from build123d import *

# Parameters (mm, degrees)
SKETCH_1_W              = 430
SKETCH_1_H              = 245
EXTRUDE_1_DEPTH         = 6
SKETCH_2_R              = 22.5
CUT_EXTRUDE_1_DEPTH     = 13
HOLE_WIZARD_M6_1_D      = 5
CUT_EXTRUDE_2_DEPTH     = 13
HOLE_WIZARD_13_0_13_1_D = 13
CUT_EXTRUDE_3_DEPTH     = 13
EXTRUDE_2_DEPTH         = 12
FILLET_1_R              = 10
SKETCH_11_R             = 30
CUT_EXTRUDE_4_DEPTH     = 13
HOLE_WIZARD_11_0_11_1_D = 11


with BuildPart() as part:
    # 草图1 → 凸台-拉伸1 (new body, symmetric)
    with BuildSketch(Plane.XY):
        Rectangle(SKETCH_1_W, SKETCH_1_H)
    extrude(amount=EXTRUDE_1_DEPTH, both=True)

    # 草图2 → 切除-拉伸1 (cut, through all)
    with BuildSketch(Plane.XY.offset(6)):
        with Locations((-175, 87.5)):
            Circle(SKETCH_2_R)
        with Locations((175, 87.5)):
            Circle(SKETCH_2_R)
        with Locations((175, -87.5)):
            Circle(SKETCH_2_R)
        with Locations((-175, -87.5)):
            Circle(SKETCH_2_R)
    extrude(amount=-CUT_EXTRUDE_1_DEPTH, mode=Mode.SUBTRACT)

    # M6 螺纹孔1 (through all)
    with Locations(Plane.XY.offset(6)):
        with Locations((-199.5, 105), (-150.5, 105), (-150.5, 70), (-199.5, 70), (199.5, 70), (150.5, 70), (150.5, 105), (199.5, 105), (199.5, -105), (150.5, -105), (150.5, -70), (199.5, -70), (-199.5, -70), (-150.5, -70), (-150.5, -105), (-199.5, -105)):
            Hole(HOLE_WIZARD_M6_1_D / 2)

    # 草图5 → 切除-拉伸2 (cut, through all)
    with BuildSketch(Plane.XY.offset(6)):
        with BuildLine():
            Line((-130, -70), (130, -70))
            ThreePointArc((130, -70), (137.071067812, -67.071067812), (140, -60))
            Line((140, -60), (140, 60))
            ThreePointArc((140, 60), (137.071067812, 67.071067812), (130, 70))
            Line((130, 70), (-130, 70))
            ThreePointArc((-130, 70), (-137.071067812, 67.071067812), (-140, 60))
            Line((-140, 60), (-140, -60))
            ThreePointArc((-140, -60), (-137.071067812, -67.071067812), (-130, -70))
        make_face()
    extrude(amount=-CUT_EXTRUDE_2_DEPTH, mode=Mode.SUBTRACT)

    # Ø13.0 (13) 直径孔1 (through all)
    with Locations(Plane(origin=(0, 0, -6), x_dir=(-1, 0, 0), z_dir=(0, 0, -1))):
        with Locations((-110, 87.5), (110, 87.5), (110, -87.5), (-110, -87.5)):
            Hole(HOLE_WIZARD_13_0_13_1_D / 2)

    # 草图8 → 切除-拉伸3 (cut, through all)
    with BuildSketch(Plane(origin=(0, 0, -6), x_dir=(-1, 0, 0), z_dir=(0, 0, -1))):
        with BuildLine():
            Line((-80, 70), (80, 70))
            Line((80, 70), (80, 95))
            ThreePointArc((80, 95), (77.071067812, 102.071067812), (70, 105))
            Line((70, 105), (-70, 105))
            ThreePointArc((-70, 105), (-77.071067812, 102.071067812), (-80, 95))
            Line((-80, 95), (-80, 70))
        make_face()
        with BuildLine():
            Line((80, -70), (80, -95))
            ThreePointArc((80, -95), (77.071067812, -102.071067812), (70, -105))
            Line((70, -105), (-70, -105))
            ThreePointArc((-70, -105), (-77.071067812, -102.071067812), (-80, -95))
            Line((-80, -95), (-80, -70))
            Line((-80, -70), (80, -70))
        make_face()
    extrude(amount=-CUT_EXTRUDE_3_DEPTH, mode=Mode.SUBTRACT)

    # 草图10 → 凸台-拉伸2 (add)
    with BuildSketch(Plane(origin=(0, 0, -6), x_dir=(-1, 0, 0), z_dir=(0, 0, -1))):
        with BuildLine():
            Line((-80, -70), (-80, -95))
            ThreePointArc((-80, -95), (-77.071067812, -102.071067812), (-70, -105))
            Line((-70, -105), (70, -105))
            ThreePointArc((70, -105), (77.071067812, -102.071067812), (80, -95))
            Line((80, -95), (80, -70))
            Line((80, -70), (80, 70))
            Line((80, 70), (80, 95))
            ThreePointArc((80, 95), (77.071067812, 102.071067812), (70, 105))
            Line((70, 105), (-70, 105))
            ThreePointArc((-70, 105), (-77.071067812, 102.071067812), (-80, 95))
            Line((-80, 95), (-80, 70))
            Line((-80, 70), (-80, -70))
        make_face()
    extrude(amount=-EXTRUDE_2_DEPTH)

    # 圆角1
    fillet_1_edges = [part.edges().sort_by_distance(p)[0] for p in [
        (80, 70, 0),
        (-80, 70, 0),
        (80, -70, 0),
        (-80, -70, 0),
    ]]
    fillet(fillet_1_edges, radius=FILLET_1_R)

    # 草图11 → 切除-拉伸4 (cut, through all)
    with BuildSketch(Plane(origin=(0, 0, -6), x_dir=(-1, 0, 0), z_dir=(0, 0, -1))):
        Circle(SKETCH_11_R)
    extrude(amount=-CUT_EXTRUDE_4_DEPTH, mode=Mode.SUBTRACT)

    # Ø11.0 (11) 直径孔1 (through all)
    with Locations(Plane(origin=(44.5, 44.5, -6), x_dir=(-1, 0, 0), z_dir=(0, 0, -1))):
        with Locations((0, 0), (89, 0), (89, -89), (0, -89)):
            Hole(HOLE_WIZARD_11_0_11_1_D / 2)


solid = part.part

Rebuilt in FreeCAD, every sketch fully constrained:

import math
import FreeCAD as App
import Part
import Sketcher
from FreeCAD import Vector


def edges_at(feature, points):
    """Names of the edges that pass closest to the given points."""
    edges = feature.Shape.Edges
    near = lambda p: min(range(len(edges)), key=lambda i: edges[i].distToShape(Part.Vertex(*p))[0])
    return sorted({f"Edge{near(p) + 1}" for p in points})


def add_polygon(sketch, points):
    """Adds a closed chain of lines whose ends are joined by coincident constraints."""
    first, n = sketch.GeometryCount, len(points)
    for a, b in zip(points, points[1:] + points[:1]):
        sketch.addGeometry(Part.LineSegment(App.Vector(*a, 0), App.Vector(*b, 0)), False)
    for i in range(n):
        sketch.addConstraint(Sketcher.Constraint("Coincident", first + i, 2, first + (i + 1) % n, 1))

doc = App.newDocument("Part")
body = doc.addObject("PartDesign::Body", "Body")

# Sketch on XY plane
sketch1 = body.newObject("Sketcher::SketchObject", "Sketch")
sketch1.AttachmentSupport = (doc.getObject("XY_Plane"), [""])
sketch1.MapMode = "FlatFace"
add_polygon(sketch1, [(-215, 122), (-215, -122), (215, -122), (215, 122)])  # lines 0-3
sketch1.addConstraint(Sketcher.Constraint("Vertical", 0))
sketch1.addConstraint(Sketcher.Constraint("Horizontal", 1))
sketch1.addConstraint(Sketcher.Constraint("Vertical", 2))
sketch1.addConstraint(Sketcher.Constraint("Horizontal", 3))
sketch1.addConstraint(Sketcher.Constraint("Symmetric", 0, 2, 2, 2, -1, 1))
sketch1.addConstraint(Sketcher.Constraint("DistanceX", 1, 1, 1, 2, 430.0))
sketch1.addConstraint(Sketcher.Constraint("DistanceY", 0, 2, 0, 1, 245.0))
pad1 = body.newObject("PartDesign::Pad", "Pad")
pad1.Profile = sketch1
pad1.Length = 12
pad1.Midplane = True

# Sketch on XY plane
sketch2 = body.newObject("Sketcher::SketchObject", "Sketch001")
sketch2.AttachmentSupport = (doc.getObject("XY_Plane"), [""])
sketch2.MapMode = "FlatFace"
sketch2.AttachmentOffset = App.Placement(Vector(0, 0, 6), App.Rotation())
sketch2.addGeometry(Part.Circle(Vector(-175, 88, 0), Vector(0, 0, 1), 22), False)
sketch2.addGeometry(Part.Circle(Vector(175, 88, 0), Vector(0, 0, 1), 22), False)
sketch2.addGeometry(Part.Circle(Vector(175, -88, 0), Vector(0, 0, 1), 22), False)
sketch2.addGeometry(Part.Circle(Vector(-175, -88, 0), Vector(0, 0, 1), 22), False)
sketch2.addConstraint(Sketcher.Constraint("Equal", 0, 1))
sketch2.addConstraint(Sketcher.Constraint("Equal", 1, 2))
sketch2.addConstraint(Sketcher.Constraint("Equal", 2, 3))
sketch2.addConstraint(Sketcher.Constraint("Symmetric", 0, 3, 2, 3, -1, 1))
sketch2.addConstraint(Sketcher.Constraint("Symmetric", 1, 3, 3, 3, -1, 1))
sketch2.addConstraint(Sketcher.Constraint("Symmetric", 0, 3, 1, 3, -2))
sketch2.addConstraint(Sketcher.Constraint("Diameter", 0, 45.0))
sketch2.addConstraint(Sketcher.Constraint("DistanceX", 0, 3, -1, 1, 175.0))
sketch2.addConstraint(Sketcher.Constraint("DistanceY", 2, 3, 1, 3, 175.0))
pocket1 = body.newObject("PartDesign::Pocket", "Pocket")
pocket1.Profile = sketch2
pocket1.Type = "ThroughAll"

# Sketch on XY plane
sketch3 = body.newObject("Sketcher::SketchObject", "Sketch002")
sketch3.AttachmentSupport = (doc.getObject("XY_Plane"), [""])
sketch3.MapMode = "FlatFace"
sketch3.AttachmentOffset = App.Placement(Vector(0, 0, 6), App.Rotation())
sketch3.addGeometry(Part.Circle(Vector(-199.5, 105, 0), Vector(0, 0, 1), 2.5), False)
sketch3.addGeometry(Part.Circle(Vector(-150.5, 105, 0), Vector(0, 0, 1), 2.5), False)
sketch3.addGeometry(Part.Circle(Vector(-150.5, 70, 0), Vector(0, 0, 1), 2.5), False)
sketch3.addGeometry(Part.Circle(Vector(-199.5, 70, 0), Vector(0, 0, 1), 2.5), False)
sketch3.addGeometry(Part.Circle(Vector(199.5, 70, 0), Vector(0, 0, 1), 2.5), False)
sketch3.addGeometry(Part.Circle(Vector(150.5, 70, 0), Vector(0, 0, 1), 2.5), False)
sketch3.addGeometry(Part.Circle(Vector(150.5, 105, 0), Vector(0, 0, 1), 2.5), False)
sketch3.addGeometry(Part.Circle(Vector(199.5, 105, 0), Vector(0, 0, 1), 2.5), False)
sketch3.addGeometry(Part.Circle(Vector(199.5, -105, 0), Vector(0, 0, 1), 2.5), False)
sketch3.addGeometry(Part.Circle(Vector(150.5, -105, 0), Vector(0, 0, 1), 2.5), False)
sketch3.addGeometry(Part.Circle(Vector(150.5, -70, 0), Vector(0, 0, 1), 2.5), False)
sketch3.addGeometry(Part.Circle(Vector(199.5, -70, 0), Vector(0, 0, 1), 2.5), False)
sketch3.addGeometry(Part.Circle(Vector(-199.5, -70, 0), Vector(0, 0, 1), 2.5), False)
sketch3.addGeometry(Part.Circle(Vector(-150.5, -70, 0), Vector(0, 0, 1), 2.5), False)
sketch3.addGeometry(Part.Circle(Vector(-150.5, -105, 0), Vector(0, 0, 1), 2.5), False)
sketch3.addGeometry(Part.Circle(Vector(-199.5, -105, 0), Vector(0, 0, 1), 2.5), False)
sketch3.addConstraint(Sketcher.Constraint("Equal", 0, 1))
sketch3.addConstraint(Sketcher.Constraint("Equal", 1, 2))
sketch3.addConstraint(Sketcher.Constraint("Equal", 2, 3))
sketch3.addConstraint(Sketcher.Constraint("Equal", 3, 4))
sketch3.addConstraint(Sketcher.Constraint("Equal", 4, 5))
sketch3.addConstraint(Sketcher.Constraint("Equal", 5, 6))
sketch3.addConstraint(Sketcher.Constraint("Equal", 6, 7))
sketch3.addConstraint(Sketcher.Constraint("Equal", 7, 8))
sketch3.addConstraint(Sketcher.Constraint("Equal", 8, 9))
sketch3.addConstraint(Sketcher.Constraint("Equal", 9, 10))
sketch3.addConstraint(Sketcher.Constraint("Equal", 10, 11))
sketch3.addConstraint(Sketcher.Constraint("Equal", 11, 12))
sketch3.addConstraint(Sketcher.Constraint("Equal", 12, 13))
sketch3.addConstraint(Sketcher.Constraint("Equal", 13, 14))
sketch3.addConstraint(Sketcher.Constraint("Equal", 14, 15))
sketch3.addConstraint(Sketcher.Constraint("Symmetric", 0, 3, 8, 3, -1, 1))
sketch3.addConstraint(Sketcher.Constraint("Symmetric", 1, 3, 9, 3, -1, 1))
sketch3.addConstraint(Sketcher.Constraint("Symmetric", 2, 3, 10, 3, -1, 1))
sketch3.addConstraint(Sketcher.Constraint("Symmetric", 3, 3, 11, 3, -1, 1))
sketch3.addConstraint(Sketcher.Constraint("Symmetric", 4, 3, 12, 3, -1, 1))
sketch3.addConstraint(Sketcher.Constraint("Symmetric", 5, 3, 13, 3, -1, 1))
sketch3.addConstraint(Sketcher.Constraint("Symmetric", 6, 3, 14, 3, -1, 1))
sketch3.addConstraint(Sketcher.Constraint("Symmetric", 7, 3, 15, 3, -1, 1))
sketch3.addConstraint(Sketcher.Constraint("Symmetric", 3, 3, 4, 3, -2))
sketch3.addConstraint(Sketcher.Constraint("Symmetric", 2, 3, 5, 3, -2))
sketch3.addConstraint(Sketcher.Constraint("Symmetric", 1, 3, 6, 3, -2))
sketch3.addConstraint(Sketcher.Constraint("Symmetric", 0, 3, 7, 3, -2))
sketch3.addConstraint(Sketcher.Constraint("Horizontal", 0, 3, 1, 3))
sketch3.addConstraint(Sketcher.Constraint("Horizontal", 2, 3, 3, 3))
sketch3.addConstraint(Sketcher.Constraint("Vertical", 1, 3, 2, 3))
sketch3.addConstraint(Sketcher.Constraint("Vertical", 0, 3, 3, 3))
sketch3.addConstraint(Sketcher.Constraint("Diameter", 0, 5.0))
sketch3.addConstraint(Sketcher.Constraint("DistanceY", -1, 1, 0, 3, 105.0))
sketch3.addConstraint(Sketcher.Constraint("DistanceY", -1, 1, 2, 3, 70.0))
sketch3.addConstraint(Sketcher.Constraint("DistanceX", 0, 3, 1, 3, 49.0))
sketch3.addConstraint(Sketcher.Constraint("DistanceX", 2, 3, 4, 3, 350.0))
doc.recompute()
hole = body.newObject("PartDesign::Hole", "Hole")
hole.Profile = sketch3
hole.ThreadType = "None"
hole.Diameter = 5
hole.DepthType = "ThroughAll"

# Sketch on XY plane
sketch4 = body.newObject("Sketcher::SketchObject", "Sketch003")
sketch4.AttachmentSupport = (doc.getObject("XY_Plane"), [""])
sketch4.MapMode = "FlatFace"
sketch4.AttachmentOffset = App.Placement(Vector(0, 0, 6), App.Rotation())
sketch4.addGeometry(Part.LineSegment(Vector(-130, -70, 0), Vector(130, -70, 0)), False)
sketch4.addGeometry(Part.ArcOfCircle(Part.Circle(Vector(130, -60, 0), Vector(0, 0, 1), 10), math.radians(-90), math.radians(0)), False)
sketch4.addGeometry(Part.LineSegment(Vector(140, -60, 0), Vector(140, 60, 0)), False)
sketch4.addGeometry(Part.ArcOfCircle(Part.Circle(Vector(130, 60, 0), Vector(0, 0, 1), 10), math.radians(0), math.radians(90)), False)
sketch4.addGeometry(Part.LineSegment(Vector(130, 70, 0), Vector(-130, 70, 0)), False)
sketch4.addGeometry(Part.ArcOfCircle(Part.Circle(Vector(-130, 60, 0), Vector(0, 0, 1), 10), math.radians(90), math.radians(180)), False)
sketch4.addGeometry(Part.LineSegment(Vector(-140, 60, 0), Vector(-140, -60, 0)), False)
sketch4.addGeometry(Part.ArcOfCircle(Part.Circle(Vector(-130, -60, 0), Vector(0, 0, 1), 10), math.radians(180), math.radians(270)), False)
sketch4.addConstraint(Sketcher.Constraint("Tangent", 0, 2, 1, 1))
sketch4.addConstraint(Sketcher.Constraint("Tangent", 1, 2, 2, 1))
sketch4.addConstraint(Sketcher.Constraint("Tangent", 2, 2, 3, 1))
sketch4.addConstraint(Sketcher.Constraint("Tangent", 3, 2, 4, 1))
sketch4.addConstraint(Sketcher.Constraint("Tangent", 4, 2, 5, 1))
sketch4.addConstraint(Sketcher.Constraint("Tangent", 5, 2, 6, 1))
sketch4.addConstraint(Sketcher.Constraint("Tangent", 6, 2, 7, 1))
sketch4.addConstraint(Sketcher.Constraint("Tangent", 7, 2, 0, 1))
sketch4.addConstraint(Sketcher.Constraint("Horizontal", 0))
sketch4.addConstraint(Sketcher.Constraint("Vertical", 2))
sketch4.addConstraint(Sketcher.Constraint("Horizontal", 4))
sketch4.addConstraint(Sketcher.Constraint("Vertical", 6))
sketch4.addConstraint(Sketcher.Constraint("Equal", 1, 3))
sketch4.addConstraint(Sketcher.Constraint("Equal", 3, 5))
sketch4.addConstraint(Sketcher.Constraint("Equal", 5, 7))
sketch4.addConstraint(Sketcher.Constraint("Symmetric", 1, 3, 5, 3, -1, 1))
sketch4.addConstraint(Sketcher.Constraint("Radius", 1, 10.0))
sketch4.addConstraint(Sketcher.Constraint("DistanceX", 0, 1, 0, 2, 260.0))
sketch4.addConstraint(Sketcher.Constraint("DistanceY", 2, 1, 2, 2, 120.0))
pocket2 = body.newObject("PartDesign::Pocket", "Pocket001")
pocket2.Profile = sketch4
pocket2.Type = "ThroughAll"

# Sketch on XY plane
sketch5 = body.newObject("Sketcher::SketchObject", "Sketch004")
sketch5.AttachmentSupport = (doc.getObject("XY_Plane"), [""])
sketch5.MapMode = "FlatFace"
sketch5.AttachmentOffset = App.Placement(Vector(0, 0, -6), App.Rotation())
sketch5.addGeometry(Part.Circle(Vector(110, 88, 0), Vector(0, 0, 1), 6), False)
sketch5.addGeometry(Part.Circle(Vector(-110, 88, 0), Vector(0, 0, 1), 6), False)
sketch5.addGeometry(Part.Circle(Vector(-110, -88, 0), Vector(0, 0, 1), 6), False)
sketch5.addGeometry(Part.Circle(Vector(110, -88, 0), Vector(0, 0, 1), 6), False)
sketch5.addConstraint(Sketcher.Constraint("Equal", 0, 1))
sketch5.addConstraint(Sketcher.Constraint("Equal", 1, 2))
sketch5.addConstraint(Sketcher.Constraint("Equal", 2, 3))
sketch5.addConstraint(Sketcher.Constraint("Symmetric", 0, 3, 2, 3, -1, 1))
sketch5.addConstraint(Sketcher.Constraint("Symmetric", 1, 3, 3, 3, -1, 1))
sketch5.addConstraint(Sketcher.Constraint("Symmetric", 0, 3, 1, 3, -2))
sketch5.addConstraint(Sketcher.Constraint("Diameter", 0, 13.0))
sketch5.addConstraint(Sketcher.Constraint("DistanceX", -1, 1, 0, 3, 110.0))
sketch5.addConstraint(Sketcher.Constraint("DistanceY", 2, 3, 1, 3, 175.0))
doc.recompute()
hole2 = body.newObject("PartDesign::Hole", "Hole001")
hole2.Profile = sketch5
hole2.ThreadType = "None"
hole2.Diameter = 13
hole2.DepthType = "ThroughAll"
hole2.Reversed = True

# Sketch on XY plane
sketch6 = body.newObject("Sketcher::SketchObject", "Sketch005")
sketch6.AttachmentSupport = (doc.getObject("XY_Plane"), [""])
sketch6.MapMode = "FlatFace"
sketch6.AttachmentOffset = App.Placement(Vector(0, 0, -6), App.Rotation())
sketch6.addGeometry(Part.LineSegment(Vector(80, 70, 0), Vector(-80, 70, 0)), False)
sketch6.addGeometry(Part.LineSegment(Vector(-80, 70, 0), Vector(-80, 95, 0)), False)
sketch6.addGeometry(Part.ArcOfCircle(Part.Circle(Vector(-70, 95, 0), Vector(0, 0, 1), 10), math.radians(90), math.radians(180)), False)
sketch6.addGeometry(Part.LineSegment(Vector(-70, 105, 0), Vector(70, 105, 0)), False)
sketch6.addGeometry(Part.ArcOfCircle(Part.Circle(Vector(70, 95, 0), Vector(0, 0, 1), 10), math.radians(0), math.radians(90)), False)
sketch6.addGeometry(Part.LineSegment(Vector(80, 95, 0), Vector(80, 70, 0)), False)
sketch6.addGeometry(Part.LineSegment(Vector(-80, -95, 0), Vector(-80, -70, 0)), False)
sketch6.addGeometry(Part.LineSegment(Vector(-80, -70, 0), Vector(80, -70, 0)), False)
sketch6.addGeometry(Part.LineSegment(Vector(80, -70, 0), Vector(80, -95, 0)), False)
sketch6.addGeometry(Part.ArcOfCircle(Part.Circle(Vector(70, -95, 0), Vector(0, 0, 1), 10), math.radians(-90), math.radians(0)), False)
sketch6.addGeometry(Part.LineSegment(Vector(70, -105, 0), Vector(-70, -105, 0)), False)
sketch6.addGeometry(Part.ArcOfCircle(Part.Circle(Vector(-70, -95, 0), Vector(0, 0, 1), 10), math.radians(180), math.radians(270)), False)
sketch6.addConstraint(Sketcher.Constraint("Coincident", 0, 2, 1, 1))
sketch6.addConstraint(Sketcher.Constraint("Tangent", 1, 2, 2, 2))
sketch6.addConstraint(Sketcher.Constraint("Tangent", 2, 1, 3, 1))
sketch6.addConstraint(Sketcher.Constraint("Tangent", 3, 2, 4, 2))
sketch6.addConstraint(Sketcher.Constraint("Tangent", 4, 1, 5, 1))
sketch6.addConstraint(Sketcher.Constraint("Coincident", 5, 2, 0, 1))
sketch6.addConstraint(Sketcher.Constraint("Coincident", 6, 2, 7, 1))
sketch6.addConstraint(Sketcher.Constraint("Coincident", 7, 2, 8, 1))
sketch6.addConstraint(Sketcher.Constraint("Tangent", 8, 2, 9, 2))
sketch6.addConstraint(Sketcher.Constraint("Tangent", 9, 1, 10, 1))
sketch6.addConstraint(Sketcher.Constraint("Tangent", 10, 2, 11, 2))
sketch6.addConstraint(Sketcher.Constraint("Tangent", 11, 1, 6, 1))
sketch6.addConstraint(Sketcher.Constraint("Horizontal", 0))
sketch6.addConstraint(Sketcher.Constraint("Vertical", 1))
sketch6.addConstraint(Sketcher.Constraint("Horizontal", 3))
sketch6.addConstraint(Sketcher.Constraint("Vertical", 5))
sketch6.addConstraint(Sketcher.Constraint("Vertical", 6))
sketch6.addConstraint(Sketcher.Constraint("Horizontal", 7))
sketch6.addConstraint(Sketcher.Constraint("Vertical", 8))
sketch6.addConstraint(Sketcher.Constraint("Horizontal", 10))
sketch6.addConstraint(Sketcher.Constraint("Equal", 2, 4))
sketch6.addConstraint(Sketcher.Constraint("Equal", 4, 9))
sketch6.addConstraint(Sketcher.Constraint("Equal", 9, 11))
sketch6.addConstraint(Sketcher.Constraint("Symmetric", 2, 3, 9, 3, -1, 1))
sketch6.addConstraint(Sketcher.Constraint("Symmetric", 5, 2, 6, 2, -1, 1))
sketch6.addConstraint(Sketcher.Constraint("Vertical", 4, 3, 9, 3))
sketch6.addConstraint(Sketcher.Constraint("Radius", 2, 10.0))
sketch6.addConstraint(Sketcher.Constraint("DistanceX", 0, 2, 0, 1, 160.0))
sketch6.addConstraint(Sketcher.Constraint("DistanceY", 1, 1, 1, 2, 25.0))
sketch6.addConstraint(Sketcher.Constraint("DistanceY", -1, 1, 2, 3, 95.0))
pocket3 = body.newObject("PartDesign::Pocket", "Pocket002")
pocket3.Profile = sketch6
pocket3.Type = "ThroughAll"
pocket3.Reversed = True

# Sketch on XY plane
sketch7 = body.newObject("Sketcher::SketchObject", "Sketch006")
sketch7.AttachmentSupport = (doc.getObject("XY_Plane"), [""])
sketch7.MapMode = "FlatFace"
sketch7.AttachmentOffset = App.Placement(Vector(0, 0, -6), App.Rotation())
sketch7.addGeometry(Part.ArcOfCircle(Part.Circle(Vector(70, -95, 0), Vector(0, 0, 1), 10), math.radians(-90), math.radians(0)), False)
sketch7.addGeometry(Part.LineSegment(Vector(70, -105, 0), Vector(-70, -105, 0)), False)
sketch7.addGeometry(Part.ArcOfCircle(Part.Circle(Vector(-70, -95, 0), Vector(0, 0, 1), 10), math.radians(180), math.radians(270)), False)
sketch7.addGeometry(Part.LineSegment(Vector(-80, -95, 0), Vector(-80, 95, 0)), False)
sketch7.addGeometry(Part.ArcOfCircle(Part.Circle(Vector(-70, 95, 0), Vector(0, 0, 1), 10), math.radians(90), math.radians(180)), False)
sketch7.addGeometry(Part.LineSegment(Vector(-70, 105, 0), Vector(70, 105, 0)), False)
sketch7.addGeometry(Part.ArcOfCircle(Part.Circle(Vector(70, 95, 0), Vector(0, 0, 1), 10), math.radians(0), math.radians(90)), False)
sketch7.addGeometry(Part.LineSegment(Vector(80, 95, 0), Vector(80, -95, 0)), False)
sketch7.addConstraint(Sketcher.Constraint("Tangent", 0, 1, 1, 1))
sketch7.addConstraint(Sketcher.Constraint("Tangent", 1, 2, 2, 2))
sketch7.addConstraint(Sketcher.Constraint("Tangent", 2, 1, 3, 1))
sketch7.addConstraint(Sketcher.Constraint("Tangent", 3, 2, 4, 2))
sketch7.addConstraint(Sketcher.Constraint("Tangent", 4, 1, 5, 1))
sketch7.addConstraint(Sketcher.Constraint("Tangent", 5, 2, 6, 2))
sketch7.addConstraint(Sketcher.Constraint("Tangent", 6, 1, 7, 1))
sketch7.addConstraint(Sketcher.Constraint("Tangent", 7, 2, 0, 2))
sketch7.addConstraint(Sketcher.Constraint("Horizontal", 1))
sketch7.addConstraint(Sketcher.Constraint("Vertical", 3))
sketch7.addConstraint(Sketcher.Constraint("Horizontal", 5))
sketch7.addConstraint(Sketcher.Constraint("Vertical", 7))
sketch7.addConstraint(Sketcher.Constraint("Equal", 0, 2))
sketch7.addConstraint(Sketcher.Constraint("Equal", 2, 4))
sketch7.addConstraint(Sketcher.Constraint("Equal", 4, 6))
sketch7.addConstraint(Sketcher.Constraint("Symmetric", 0, 3, 4, 3, -1, 1))
sketch7.addConstraint(Sketcher.Constraint("Radius", 0, 10.0))
sketch7.addConstraint(Sketcher.Constraint("DistanceX", 1, 2, 1, 1, 140.0))
sketch7.addConstraint(Sketcher.Constraint("DistanceY", 3, 1, 3, 2, 190.0))
pad2 = body.newObject("PartDesign::Pad", "Pad001")
pad2.Profile = sketch7
pad2.Length = 12
doc.recompute()

fillet = body.newObject("PartDesign::Fillet", "Fillet")
fillet.Base = (pad2, edges_at(pad2, [
    (80, 70, 0),
    (-80, 70, 0),
    (80, -70, 0),
    (-80, -70, 0),
]))
fillet.Radius = 10

# Sketch on XY plane
sketch8 = body.newObject("Sketcher::SketchObject", "Sketch007")
sketch8.AttachmentSupport = (doc.getObject("XY_Plane"), [""])
sketch8.MapMode = "FlatFace"
sketch8.AttachmentOffset = App.Placement(Vector(0, 0, -6), App.Rotation())
sketch8.addGeometry(Part.Circle(Vector(0, 0, 0), Vector(0, 0, 1), 30), False)
sketch8.addConstraint(Sketcher.Constraint("Coincident", 0, 3, -1, 1))
sketch8.addConstraint(Sketcher.Constraint("Diameter", 0, 60.0))
pocket4 = body.newObject("PartDesign::Pocket", "Pocket003")
pocket4.Profile = sketch8
pocket4.Type = "ThroughAll"
pocket4.Reversed = True

# Sketch on XY plane
sketch9 = body.newObject("Sketcher::SketchObject", "Sketch008")
sketch9.AttachmentSupport = (doc.getObject("XY_Plane"), [""])
sketch9.MapMode = "FlatFace"
sketch9.AttachmentOffset = App.Placement(Vector(0, 0, -6), App.Rotation())
sketch9.addGeometry(Part.Circle(Vector(44, 44, 0), Vector(0, 0, 1), 6), False)
sketch9.addGeometry(Part.Circle(Vector(-44, 44, 0), Vector(0, 0, 1), 6), False)
sketch9.addGeometry(Part.Circle(Vector(-44, -44, 0), Vector(0, 0, 1), 6), False)
sketch9.addGeometry(Part.Circle(Vector(44, -44, 0), Vector(0, 0, 1), 6), False)
sketch9.addConstraint(Sketcher.Constraint("Equal", 0, 1))
sketch9.addConstraint(Sketcher.Constraint("Equal", 1, 2))
sketch9.addConstraint(Sketcher.Constraint("Equal", 2, 3))
sketch9.addConstraint(Sketcher.Constraint("Symmetric", 0, 3, 2, 3, -1, 1))
sketch9.addConstraint(Sketcher.Constraint("Symmetric", 1, 3, 3, 3, -1, 1))
sketch9.addConstraint(Sketcher.Constraint("Symmetric", 0, 3, 1, 3, -2))
sketch9.addConstraint(Sketcher.Constraint("Diameter", 0, 11.0))
sketch9.addConstraint(Sketcher.Constraint("DistanceX", 1, 3, 0, 3, 89.0))
sketch9.addConstraint(Sketcher.Constraint("DistanceY", 2, 3, 1, 3, 89.0))
doc.recompute()
hole3 = body.newObject("PartDesign::Hole", "Hole002")
hole3.Profile = sketch9
hole3.ThreadType = "None"
hole3.Diameter = 11
hole3.DepthType = "ThroughAll"
hole3.Reversed = True

doc.recompute()
